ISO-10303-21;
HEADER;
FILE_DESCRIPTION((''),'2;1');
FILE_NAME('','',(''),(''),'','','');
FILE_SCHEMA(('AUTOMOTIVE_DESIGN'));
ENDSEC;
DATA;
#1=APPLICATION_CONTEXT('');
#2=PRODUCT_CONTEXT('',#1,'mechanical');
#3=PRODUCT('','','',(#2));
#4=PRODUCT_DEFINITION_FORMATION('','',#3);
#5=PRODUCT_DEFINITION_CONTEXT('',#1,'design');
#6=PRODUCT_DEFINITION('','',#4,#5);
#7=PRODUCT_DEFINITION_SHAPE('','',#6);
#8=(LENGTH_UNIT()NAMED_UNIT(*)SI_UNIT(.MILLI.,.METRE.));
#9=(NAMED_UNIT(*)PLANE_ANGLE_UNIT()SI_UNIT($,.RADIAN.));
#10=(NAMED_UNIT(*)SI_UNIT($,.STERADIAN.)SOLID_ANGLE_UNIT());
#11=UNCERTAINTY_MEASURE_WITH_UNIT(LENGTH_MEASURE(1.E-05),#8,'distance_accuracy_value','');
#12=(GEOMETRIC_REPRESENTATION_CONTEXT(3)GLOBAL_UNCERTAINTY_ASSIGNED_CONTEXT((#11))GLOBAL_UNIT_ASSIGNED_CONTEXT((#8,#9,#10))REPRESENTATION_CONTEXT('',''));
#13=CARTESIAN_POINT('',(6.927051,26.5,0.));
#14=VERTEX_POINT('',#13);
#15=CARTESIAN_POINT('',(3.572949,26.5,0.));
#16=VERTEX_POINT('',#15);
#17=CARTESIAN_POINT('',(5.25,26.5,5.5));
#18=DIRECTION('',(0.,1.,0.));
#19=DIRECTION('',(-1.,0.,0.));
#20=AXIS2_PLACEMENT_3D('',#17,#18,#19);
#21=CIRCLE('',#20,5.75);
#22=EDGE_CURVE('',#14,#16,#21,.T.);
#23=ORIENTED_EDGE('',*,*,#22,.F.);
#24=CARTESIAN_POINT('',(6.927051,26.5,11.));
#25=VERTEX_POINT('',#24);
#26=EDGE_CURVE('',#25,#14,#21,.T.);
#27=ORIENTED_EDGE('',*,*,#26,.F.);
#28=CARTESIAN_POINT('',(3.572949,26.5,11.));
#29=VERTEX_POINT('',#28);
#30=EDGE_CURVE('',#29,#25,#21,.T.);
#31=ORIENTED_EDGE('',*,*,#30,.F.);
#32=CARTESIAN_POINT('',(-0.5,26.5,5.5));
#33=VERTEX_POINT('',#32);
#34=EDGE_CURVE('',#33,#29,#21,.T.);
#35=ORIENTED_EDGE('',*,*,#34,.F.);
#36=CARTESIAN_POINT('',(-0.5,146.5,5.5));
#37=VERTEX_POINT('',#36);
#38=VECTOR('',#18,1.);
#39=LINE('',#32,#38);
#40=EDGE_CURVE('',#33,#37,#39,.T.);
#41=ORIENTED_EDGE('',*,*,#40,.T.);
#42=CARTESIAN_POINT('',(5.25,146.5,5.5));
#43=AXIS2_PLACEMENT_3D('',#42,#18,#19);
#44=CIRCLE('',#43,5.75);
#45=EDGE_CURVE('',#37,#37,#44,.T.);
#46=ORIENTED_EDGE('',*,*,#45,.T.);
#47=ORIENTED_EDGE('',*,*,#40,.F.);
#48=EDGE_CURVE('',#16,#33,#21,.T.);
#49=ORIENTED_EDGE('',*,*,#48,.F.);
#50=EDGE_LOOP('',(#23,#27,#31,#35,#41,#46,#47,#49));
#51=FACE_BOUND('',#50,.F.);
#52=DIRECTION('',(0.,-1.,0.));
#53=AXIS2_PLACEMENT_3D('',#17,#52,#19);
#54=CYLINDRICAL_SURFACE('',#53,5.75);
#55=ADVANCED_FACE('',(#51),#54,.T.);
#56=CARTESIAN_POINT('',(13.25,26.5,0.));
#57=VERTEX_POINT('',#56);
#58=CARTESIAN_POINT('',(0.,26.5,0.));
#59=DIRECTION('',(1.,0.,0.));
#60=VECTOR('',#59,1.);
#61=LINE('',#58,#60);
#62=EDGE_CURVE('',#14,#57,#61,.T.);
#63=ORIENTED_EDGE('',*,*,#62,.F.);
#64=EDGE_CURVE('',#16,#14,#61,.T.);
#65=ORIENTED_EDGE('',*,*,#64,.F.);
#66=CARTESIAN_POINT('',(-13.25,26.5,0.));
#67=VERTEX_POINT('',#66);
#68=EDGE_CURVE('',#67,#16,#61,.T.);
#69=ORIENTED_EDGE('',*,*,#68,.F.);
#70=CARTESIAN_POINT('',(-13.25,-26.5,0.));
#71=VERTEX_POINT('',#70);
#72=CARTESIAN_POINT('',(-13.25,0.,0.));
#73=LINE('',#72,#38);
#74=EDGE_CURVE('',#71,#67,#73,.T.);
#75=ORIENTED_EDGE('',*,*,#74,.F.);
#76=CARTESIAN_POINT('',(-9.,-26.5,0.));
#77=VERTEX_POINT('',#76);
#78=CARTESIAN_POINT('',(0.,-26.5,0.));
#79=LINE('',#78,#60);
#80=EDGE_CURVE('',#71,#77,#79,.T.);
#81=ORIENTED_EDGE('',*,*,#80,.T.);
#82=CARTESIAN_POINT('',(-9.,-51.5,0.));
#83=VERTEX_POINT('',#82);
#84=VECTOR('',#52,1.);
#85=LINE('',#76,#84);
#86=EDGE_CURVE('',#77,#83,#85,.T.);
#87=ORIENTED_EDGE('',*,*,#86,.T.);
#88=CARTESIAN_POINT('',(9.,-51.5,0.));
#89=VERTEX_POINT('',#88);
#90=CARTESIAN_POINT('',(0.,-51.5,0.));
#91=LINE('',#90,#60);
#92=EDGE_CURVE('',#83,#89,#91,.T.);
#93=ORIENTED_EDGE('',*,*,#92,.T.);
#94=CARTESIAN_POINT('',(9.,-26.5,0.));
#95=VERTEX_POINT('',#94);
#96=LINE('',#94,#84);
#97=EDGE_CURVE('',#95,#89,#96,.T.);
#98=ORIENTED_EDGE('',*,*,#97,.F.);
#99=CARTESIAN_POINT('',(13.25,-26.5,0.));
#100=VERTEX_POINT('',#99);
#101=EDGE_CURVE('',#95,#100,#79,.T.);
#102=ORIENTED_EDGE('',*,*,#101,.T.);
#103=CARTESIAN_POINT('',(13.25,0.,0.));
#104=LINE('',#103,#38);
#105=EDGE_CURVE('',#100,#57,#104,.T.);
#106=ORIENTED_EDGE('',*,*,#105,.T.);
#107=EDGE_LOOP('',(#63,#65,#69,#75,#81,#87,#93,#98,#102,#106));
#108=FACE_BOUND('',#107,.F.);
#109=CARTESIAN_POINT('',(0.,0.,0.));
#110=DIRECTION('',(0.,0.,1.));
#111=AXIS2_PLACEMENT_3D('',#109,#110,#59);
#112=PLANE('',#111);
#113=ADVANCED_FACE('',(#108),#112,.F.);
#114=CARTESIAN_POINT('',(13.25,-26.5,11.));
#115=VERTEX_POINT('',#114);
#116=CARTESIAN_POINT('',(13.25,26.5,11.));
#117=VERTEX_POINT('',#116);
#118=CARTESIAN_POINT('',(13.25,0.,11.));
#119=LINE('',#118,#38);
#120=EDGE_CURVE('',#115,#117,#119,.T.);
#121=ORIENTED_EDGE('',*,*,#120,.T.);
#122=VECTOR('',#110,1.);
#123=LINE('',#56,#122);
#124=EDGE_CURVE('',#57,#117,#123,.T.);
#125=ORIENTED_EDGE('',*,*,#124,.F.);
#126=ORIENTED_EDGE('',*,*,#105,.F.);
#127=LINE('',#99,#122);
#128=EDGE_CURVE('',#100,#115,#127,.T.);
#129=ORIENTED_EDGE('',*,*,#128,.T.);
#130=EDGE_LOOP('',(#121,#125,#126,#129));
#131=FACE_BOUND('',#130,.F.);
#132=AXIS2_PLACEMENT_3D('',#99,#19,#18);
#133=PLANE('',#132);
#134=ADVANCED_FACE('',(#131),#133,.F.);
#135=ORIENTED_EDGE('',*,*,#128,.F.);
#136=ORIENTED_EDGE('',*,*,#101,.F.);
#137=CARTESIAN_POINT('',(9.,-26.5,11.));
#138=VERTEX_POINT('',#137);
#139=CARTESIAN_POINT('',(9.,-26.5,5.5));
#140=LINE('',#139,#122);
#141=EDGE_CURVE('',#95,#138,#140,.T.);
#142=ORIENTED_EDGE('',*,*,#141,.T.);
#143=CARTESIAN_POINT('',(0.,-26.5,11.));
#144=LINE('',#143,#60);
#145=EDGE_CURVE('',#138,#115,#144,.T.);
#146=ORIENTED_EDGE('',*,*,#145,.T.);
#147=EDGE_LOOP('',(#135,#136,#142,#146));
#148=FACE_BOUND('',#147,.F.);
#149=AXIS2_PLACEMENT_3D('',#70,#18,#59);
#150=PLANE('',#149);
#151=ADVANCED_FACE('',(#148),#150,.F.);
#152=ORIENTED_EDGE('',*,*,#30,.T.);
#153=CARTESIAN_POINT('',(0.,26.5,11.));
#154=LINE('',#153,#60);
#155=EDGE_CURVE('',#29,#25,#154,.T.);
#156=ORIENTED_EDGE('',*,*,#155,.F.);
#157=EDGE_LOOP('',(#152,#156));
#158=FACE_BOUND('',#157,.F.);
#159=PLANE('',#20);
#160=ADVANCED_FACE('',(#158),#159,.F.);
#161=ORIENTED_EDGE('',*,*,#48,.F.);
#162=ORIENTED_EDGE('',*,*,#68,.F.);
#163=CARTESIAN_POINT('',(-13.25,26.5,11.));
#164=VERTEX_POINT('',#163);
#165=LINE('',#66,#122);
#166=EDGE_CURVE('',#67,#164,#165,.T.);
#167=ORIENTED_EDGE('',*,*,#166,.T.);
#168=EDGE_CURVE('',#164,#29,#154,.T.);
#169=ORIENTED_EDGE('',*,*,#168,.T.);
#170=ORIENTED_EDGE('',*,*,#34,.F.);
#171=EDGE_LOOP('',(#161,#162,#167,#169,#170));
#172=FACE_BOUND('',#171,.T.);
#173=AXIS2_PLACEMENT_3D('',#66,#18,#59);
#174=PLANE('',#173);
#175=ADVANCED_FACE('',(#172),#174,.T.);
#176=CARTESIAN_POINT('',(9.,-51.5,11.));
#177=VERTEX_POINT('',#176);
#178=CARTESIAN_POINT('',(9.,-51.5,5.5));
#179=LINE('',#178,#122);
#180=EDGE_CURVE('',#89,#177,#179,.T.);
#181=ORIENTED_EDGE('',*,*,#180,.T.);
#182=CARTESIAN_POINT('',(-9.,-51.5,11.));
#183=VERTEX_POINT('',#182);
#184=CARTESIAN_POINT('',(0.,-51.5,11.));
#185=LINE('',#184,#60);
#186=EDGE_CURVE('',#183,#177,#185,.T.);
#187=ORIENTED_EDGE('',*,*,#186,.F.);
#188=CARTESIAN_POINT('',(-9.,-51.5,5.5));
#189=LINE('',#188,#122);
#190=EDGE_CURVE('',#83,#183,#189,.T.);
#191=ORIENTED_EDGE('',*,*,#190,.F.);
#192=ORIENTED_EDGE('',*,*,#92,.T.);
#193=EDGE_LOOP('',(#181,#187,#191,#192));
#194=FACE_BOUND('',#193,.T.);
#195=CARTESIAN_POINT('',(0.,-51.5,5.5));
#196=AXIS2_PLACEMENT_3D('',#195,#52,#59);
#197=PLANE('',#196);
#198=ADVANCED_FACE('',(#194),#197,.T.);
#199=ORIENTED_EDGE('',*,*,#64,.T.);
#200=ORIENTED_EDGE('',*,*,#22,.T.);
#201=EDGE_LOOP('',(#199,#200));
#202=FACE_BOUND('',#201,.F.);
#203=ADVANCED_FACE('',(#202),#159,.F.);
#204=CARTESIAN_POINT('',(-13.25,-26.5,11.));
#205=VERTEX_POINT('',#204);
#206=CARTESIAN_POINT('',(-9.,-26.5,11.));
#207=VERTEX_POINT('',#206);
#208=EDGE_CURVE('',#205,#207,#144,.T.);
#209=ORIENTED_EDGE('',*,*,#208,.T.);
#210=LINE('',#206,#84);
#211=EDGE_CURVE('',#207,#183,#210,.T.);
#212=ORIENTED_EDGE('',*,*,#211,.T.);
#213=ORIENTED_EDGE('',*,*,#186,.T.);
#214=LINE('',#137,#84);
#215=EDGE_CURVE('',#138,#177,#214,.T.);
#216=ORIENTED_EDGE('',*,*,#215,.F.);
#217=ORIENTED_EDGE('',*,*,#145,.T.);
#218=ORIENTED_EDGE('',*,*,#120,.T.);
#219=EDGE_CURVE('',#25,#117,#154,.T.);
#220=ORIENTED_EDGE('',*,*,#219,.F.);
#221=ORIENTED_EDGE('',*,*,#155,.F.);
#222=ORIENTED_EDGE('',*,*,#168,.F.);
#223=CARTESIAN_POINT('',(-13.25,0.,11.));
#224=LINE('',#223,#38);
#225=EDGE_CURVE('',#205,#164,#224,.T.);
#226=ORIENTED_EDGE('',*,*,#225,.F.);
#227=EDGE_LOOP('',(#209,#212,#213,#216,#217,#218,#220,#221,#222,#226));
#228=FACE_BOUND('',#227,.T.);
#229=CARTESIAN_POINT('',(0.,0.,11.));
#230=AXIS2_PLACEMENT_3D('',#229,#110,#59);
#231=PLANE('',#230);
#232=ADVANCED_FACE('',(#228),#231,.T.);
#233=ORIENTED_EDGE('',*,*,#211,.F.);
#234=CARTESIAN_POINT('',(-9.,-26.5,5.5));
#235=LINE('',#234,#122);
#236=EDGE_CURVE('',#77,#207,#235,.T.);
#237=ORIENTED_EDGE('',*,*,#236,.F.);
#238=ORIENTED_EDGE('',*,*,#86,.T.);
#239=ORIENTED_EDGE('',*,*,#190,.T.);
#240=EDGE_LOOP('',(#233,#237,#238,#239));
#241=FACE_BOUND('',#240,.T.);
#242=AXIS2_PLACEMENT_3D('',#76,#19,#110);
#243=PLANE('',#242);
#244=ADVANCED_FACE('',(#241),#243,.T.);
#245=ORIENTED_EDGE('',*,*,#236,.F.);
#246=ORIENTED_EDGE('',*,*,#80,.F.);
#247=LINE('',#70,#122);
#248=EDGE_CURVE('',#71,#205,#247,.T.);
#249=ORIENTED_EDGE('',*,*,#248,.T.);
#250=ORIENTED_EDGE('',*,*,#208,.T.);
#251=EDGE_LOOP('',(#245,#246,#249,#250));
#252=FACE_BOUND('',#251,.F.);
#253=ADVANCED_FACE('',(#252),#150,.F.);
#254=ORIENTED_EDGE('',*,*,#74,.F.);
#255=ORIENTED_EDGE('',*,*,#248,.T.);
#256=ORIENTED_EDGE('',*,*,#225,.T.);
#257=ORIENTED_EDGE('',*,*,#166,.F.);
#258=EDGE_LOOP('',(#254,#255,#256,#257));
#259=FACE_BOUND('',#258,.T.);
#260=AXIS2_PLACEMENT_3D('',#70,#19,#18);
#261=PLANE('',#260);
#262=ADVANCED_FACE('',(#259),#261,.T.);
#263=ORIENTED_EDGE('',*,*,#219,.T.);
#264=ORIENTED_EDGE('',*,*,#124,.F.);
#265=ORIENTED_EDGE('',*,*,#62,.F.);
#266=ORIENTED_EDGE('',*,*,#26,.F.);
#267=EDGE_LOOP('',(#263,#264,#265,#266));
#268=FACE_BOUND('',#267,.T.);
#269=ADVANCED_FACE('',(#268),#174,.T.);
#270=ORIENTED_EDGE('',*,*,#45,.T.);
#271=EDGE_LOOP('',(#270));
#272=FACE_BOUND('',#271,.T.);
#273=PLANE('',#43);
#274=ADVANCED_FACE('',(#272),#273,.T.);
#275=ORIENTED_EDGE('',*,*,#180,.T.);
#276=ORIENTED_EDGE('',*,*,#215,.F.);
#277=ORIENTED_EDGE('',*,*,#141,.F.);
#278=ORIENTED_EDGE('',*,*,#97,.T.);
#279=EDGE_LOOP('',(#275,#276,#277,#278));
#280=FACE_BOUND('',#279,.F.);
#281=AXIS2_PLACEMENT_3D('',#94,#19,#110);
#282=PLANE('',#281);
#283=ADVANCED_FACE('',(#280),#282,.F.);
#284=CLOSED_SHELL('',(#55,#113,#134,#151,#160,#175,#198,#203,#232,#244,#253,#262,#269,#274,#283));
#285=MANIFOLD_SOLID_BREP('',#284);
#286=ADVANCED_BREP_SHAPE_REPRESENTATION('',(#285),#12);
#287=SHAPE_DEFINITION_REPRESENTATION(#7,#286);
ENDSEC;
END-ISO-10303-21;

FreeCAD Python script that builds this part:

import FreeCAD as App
import Part
import Sketcher
from FreeCAD import Vector


def add_polygon(sketch, points):
    """Adds a closed chain of lines whose ends are joined by coincident constraints."""
    first, n = sketch.GeometryCount, len(points)
    for a, b in zip(points, points[1:] + points[:1]):
        sketch.addGeometry(Part.LineSegment(App.Vector(*a, 0), App.Vector(*b, 0)), False)
    for i in range(n):
        sketch.addConstraint(Sketcher.Constraint("Coincident", first + i, 2, first + (i + 1) % n, 1))

doc = App.newDocument("Part")
body = doc.addObject("PartDesign::Body", "Body")

sketch1 = body.newObject("Sketcher::SketchObject", "Sketch")
sketch1.AttachmentSupport = (doc.getObject("XY_Plane"), [""])
sketch1.MapMode = "FlatFace"
add_polygon(sketch1, [(-13.25, 26.5), (-13.25, -26.5), (13.25, -26.5), (13.25, 26.5)])
sketch1.addConstraint([
    Sketcher.Constraint("Vertical", 0),
    Sketcher.Constraint("Horizontal", 1),
    Sketcher.Constraint("Vertical", 2),
    Sketcher.Constraint("Horizontal", 3),
    Sketcher.Constraint("Symmetric", 0, 2, 2, 2, -1, 1),
    Sketcher.Constraint("DistanceY", 0, 2, 0, 1, 53.0),
    Sketcher.Constraint("DistanceX", 1, 1, 1, 2, 26.5),
])
pad1 = body.newObject("PartDesign::Pad", "Pad")
pad1.Profile = sketch1
pad1.Length = 11

sketch2 = body.newObject("Sketcher::SketchObject", "Sketch001")
sketch2.AttachmentSupport = (doc.getObject("XZ_Plane"), [""])
sketch2.MapMode = "FlatFace"
sketch2.AttachmentOffset = App.Placement(Vector(0, 0, -26.5), App.Rotation())
sketch2.addGeometry(Part.Circle(Vector(5.25, 5.5, 0), Vector(0, 0, 1), 5.75), False)
sketch2.addConstraint([
    Sketcher.Constraint("Diameter", 0, 11.5),
    Sketcher.Constraint("DistanceY", -1, 1, 0, 3, 5.5),
    Sketcher.Constraint("DistanceX", -1, 1, 0, 3, 5.25),
])
pad2 = body.newObject("PartDesign::Pad", "Pad001")
pad2.Profile = sketch2
pad2.Length = 120
pad2.Reversed = True

sketch3 = body.newObject("Sketcher::SketchObject", "Sketch002")
sketch3.AttachmentSupport = (doc.getObject("XZ_Plane"), [""])
sketch3.MapMode = "FlatFace"
sketch3.AttachmentOffset = App.Placement(Vector(0, 0, 26.5), App.Rotation())
add_polygon(sketch3, [(-9, 11), (-9, 0), (9, 0), (9, 11)])
sketch3.addConstraint([
    Sketcher.Constraint("Vertical", 0),
    Sketcher.Constraint("Horizontal", 1),
    Sketcher.Constraint("Vertical", 2),
    Sketcher.Constraint("Horizontal", 3),
    Sketcher.Constraint("Symmetric", 0, 2, 1, 2, -1, 1),
    Sketcher.Constraint("DistanceX", 1, 1, 1, 2, 18.0),
    Sketcher.Constraint("DistanceY", 0, 2, 0, 1, 11.0),
])
pad3 = body.newObject("PartDesign::Pad", "Pad002")
pad3.Profile = sketch3
pad3.Length = 25

doc.recompute()
